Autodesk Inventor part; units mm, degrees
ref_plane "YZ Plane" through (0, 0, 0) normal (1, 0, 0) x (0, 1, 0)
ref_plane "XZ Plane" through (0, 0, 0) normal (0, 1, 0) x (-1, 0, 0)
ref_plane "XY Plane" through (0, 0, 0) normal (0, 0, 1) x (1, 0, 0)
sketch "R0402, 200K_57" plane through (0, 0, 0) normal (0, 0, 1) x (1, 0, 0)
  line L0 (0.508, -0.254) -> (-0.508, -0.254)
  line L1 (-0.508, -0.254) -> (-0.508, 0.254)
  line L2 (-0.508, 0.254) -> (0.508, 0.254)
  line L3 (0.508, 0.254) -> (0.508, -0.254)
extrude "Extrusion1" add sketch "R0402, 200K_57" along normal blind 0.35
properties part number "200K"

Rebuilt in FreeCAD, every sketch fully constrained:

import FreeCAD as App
import Part
import Sketcher
from FreeCAD import Vector
Q = App.Units.Quantity

doc = App.newDocument("Part")
body = doc.addObject("PartDesign::Body", "Body")

# Sketch on XY plane
sketch1 = body.newObject("Sketcher::SketchObject", "Sketch")
sketch1.AttachmentSupport = (doc.getObject("XY_Plane"), [""])
sketch1.MapMode = "FlatFace"
sketch1.addGeometry(Part.LineSegment(Vector(-0.5, -0.3, 0), Vector(0.5, -0.3, 0)), False)
sketch1.addGeometry(Part.LineSegment(Vector(0.5, -0.3, 0), Vector(0.5, 0.3, 0)), False)
sketch1.addGeometry(Part.LineSegment(Vector(0.5, 0.3, 0), Vector(-0.5, 0.3, 0)), False)
sketch1.addGeometry(Part.LineSegment(Vector(-0.5, 0.3, 0), Vector(-0.5, -0.3, 0)), False)
sketch1.addConstraint(Sketcher.Constraint("Coincident", 0, 2, 1, 1))
sketch1.addConstraint(Sketcher.Constraint("Coincident", 1, 2, 2, 1))
sketch1.addConstraint(Sketcher.Constraint("Coincident", 2, 2, 3, 1))
sketch1.addConstraint(Sketcher.Constraint("Coincident", 3, 2, 0, 1))
sketch1.addConstraint(Sketcher.Constraint("Horizontal", 0))
sketch1.addConstraint(Sketcher.Constraint("Vertical", 1))
sketch1.addConstraint(Sketcher.Constraint("Horizontal", 2))
sketch1.addConstraint(Sketcher.Constraint("Vertical", 3))
sketch1.addConstraint(Sketcher.Constraint("Symmetric", 0, 2, 2, 2, -1, 1))
sketch1.addConstraint(Sketcher.Constraint("DistanceX", 0, 1, 0, 2, Q("0.04 in")))
sketch1.addConstraint(Sketcher.Constraint("DistanceY", 1, 1, 1, 2, Q("0.02 in")))
pad1 = body.newObject("PartDesign::Pad", "Pad")
pad1.Profile = sketch1
pad1.Length = 0.35

doc.recompute()
